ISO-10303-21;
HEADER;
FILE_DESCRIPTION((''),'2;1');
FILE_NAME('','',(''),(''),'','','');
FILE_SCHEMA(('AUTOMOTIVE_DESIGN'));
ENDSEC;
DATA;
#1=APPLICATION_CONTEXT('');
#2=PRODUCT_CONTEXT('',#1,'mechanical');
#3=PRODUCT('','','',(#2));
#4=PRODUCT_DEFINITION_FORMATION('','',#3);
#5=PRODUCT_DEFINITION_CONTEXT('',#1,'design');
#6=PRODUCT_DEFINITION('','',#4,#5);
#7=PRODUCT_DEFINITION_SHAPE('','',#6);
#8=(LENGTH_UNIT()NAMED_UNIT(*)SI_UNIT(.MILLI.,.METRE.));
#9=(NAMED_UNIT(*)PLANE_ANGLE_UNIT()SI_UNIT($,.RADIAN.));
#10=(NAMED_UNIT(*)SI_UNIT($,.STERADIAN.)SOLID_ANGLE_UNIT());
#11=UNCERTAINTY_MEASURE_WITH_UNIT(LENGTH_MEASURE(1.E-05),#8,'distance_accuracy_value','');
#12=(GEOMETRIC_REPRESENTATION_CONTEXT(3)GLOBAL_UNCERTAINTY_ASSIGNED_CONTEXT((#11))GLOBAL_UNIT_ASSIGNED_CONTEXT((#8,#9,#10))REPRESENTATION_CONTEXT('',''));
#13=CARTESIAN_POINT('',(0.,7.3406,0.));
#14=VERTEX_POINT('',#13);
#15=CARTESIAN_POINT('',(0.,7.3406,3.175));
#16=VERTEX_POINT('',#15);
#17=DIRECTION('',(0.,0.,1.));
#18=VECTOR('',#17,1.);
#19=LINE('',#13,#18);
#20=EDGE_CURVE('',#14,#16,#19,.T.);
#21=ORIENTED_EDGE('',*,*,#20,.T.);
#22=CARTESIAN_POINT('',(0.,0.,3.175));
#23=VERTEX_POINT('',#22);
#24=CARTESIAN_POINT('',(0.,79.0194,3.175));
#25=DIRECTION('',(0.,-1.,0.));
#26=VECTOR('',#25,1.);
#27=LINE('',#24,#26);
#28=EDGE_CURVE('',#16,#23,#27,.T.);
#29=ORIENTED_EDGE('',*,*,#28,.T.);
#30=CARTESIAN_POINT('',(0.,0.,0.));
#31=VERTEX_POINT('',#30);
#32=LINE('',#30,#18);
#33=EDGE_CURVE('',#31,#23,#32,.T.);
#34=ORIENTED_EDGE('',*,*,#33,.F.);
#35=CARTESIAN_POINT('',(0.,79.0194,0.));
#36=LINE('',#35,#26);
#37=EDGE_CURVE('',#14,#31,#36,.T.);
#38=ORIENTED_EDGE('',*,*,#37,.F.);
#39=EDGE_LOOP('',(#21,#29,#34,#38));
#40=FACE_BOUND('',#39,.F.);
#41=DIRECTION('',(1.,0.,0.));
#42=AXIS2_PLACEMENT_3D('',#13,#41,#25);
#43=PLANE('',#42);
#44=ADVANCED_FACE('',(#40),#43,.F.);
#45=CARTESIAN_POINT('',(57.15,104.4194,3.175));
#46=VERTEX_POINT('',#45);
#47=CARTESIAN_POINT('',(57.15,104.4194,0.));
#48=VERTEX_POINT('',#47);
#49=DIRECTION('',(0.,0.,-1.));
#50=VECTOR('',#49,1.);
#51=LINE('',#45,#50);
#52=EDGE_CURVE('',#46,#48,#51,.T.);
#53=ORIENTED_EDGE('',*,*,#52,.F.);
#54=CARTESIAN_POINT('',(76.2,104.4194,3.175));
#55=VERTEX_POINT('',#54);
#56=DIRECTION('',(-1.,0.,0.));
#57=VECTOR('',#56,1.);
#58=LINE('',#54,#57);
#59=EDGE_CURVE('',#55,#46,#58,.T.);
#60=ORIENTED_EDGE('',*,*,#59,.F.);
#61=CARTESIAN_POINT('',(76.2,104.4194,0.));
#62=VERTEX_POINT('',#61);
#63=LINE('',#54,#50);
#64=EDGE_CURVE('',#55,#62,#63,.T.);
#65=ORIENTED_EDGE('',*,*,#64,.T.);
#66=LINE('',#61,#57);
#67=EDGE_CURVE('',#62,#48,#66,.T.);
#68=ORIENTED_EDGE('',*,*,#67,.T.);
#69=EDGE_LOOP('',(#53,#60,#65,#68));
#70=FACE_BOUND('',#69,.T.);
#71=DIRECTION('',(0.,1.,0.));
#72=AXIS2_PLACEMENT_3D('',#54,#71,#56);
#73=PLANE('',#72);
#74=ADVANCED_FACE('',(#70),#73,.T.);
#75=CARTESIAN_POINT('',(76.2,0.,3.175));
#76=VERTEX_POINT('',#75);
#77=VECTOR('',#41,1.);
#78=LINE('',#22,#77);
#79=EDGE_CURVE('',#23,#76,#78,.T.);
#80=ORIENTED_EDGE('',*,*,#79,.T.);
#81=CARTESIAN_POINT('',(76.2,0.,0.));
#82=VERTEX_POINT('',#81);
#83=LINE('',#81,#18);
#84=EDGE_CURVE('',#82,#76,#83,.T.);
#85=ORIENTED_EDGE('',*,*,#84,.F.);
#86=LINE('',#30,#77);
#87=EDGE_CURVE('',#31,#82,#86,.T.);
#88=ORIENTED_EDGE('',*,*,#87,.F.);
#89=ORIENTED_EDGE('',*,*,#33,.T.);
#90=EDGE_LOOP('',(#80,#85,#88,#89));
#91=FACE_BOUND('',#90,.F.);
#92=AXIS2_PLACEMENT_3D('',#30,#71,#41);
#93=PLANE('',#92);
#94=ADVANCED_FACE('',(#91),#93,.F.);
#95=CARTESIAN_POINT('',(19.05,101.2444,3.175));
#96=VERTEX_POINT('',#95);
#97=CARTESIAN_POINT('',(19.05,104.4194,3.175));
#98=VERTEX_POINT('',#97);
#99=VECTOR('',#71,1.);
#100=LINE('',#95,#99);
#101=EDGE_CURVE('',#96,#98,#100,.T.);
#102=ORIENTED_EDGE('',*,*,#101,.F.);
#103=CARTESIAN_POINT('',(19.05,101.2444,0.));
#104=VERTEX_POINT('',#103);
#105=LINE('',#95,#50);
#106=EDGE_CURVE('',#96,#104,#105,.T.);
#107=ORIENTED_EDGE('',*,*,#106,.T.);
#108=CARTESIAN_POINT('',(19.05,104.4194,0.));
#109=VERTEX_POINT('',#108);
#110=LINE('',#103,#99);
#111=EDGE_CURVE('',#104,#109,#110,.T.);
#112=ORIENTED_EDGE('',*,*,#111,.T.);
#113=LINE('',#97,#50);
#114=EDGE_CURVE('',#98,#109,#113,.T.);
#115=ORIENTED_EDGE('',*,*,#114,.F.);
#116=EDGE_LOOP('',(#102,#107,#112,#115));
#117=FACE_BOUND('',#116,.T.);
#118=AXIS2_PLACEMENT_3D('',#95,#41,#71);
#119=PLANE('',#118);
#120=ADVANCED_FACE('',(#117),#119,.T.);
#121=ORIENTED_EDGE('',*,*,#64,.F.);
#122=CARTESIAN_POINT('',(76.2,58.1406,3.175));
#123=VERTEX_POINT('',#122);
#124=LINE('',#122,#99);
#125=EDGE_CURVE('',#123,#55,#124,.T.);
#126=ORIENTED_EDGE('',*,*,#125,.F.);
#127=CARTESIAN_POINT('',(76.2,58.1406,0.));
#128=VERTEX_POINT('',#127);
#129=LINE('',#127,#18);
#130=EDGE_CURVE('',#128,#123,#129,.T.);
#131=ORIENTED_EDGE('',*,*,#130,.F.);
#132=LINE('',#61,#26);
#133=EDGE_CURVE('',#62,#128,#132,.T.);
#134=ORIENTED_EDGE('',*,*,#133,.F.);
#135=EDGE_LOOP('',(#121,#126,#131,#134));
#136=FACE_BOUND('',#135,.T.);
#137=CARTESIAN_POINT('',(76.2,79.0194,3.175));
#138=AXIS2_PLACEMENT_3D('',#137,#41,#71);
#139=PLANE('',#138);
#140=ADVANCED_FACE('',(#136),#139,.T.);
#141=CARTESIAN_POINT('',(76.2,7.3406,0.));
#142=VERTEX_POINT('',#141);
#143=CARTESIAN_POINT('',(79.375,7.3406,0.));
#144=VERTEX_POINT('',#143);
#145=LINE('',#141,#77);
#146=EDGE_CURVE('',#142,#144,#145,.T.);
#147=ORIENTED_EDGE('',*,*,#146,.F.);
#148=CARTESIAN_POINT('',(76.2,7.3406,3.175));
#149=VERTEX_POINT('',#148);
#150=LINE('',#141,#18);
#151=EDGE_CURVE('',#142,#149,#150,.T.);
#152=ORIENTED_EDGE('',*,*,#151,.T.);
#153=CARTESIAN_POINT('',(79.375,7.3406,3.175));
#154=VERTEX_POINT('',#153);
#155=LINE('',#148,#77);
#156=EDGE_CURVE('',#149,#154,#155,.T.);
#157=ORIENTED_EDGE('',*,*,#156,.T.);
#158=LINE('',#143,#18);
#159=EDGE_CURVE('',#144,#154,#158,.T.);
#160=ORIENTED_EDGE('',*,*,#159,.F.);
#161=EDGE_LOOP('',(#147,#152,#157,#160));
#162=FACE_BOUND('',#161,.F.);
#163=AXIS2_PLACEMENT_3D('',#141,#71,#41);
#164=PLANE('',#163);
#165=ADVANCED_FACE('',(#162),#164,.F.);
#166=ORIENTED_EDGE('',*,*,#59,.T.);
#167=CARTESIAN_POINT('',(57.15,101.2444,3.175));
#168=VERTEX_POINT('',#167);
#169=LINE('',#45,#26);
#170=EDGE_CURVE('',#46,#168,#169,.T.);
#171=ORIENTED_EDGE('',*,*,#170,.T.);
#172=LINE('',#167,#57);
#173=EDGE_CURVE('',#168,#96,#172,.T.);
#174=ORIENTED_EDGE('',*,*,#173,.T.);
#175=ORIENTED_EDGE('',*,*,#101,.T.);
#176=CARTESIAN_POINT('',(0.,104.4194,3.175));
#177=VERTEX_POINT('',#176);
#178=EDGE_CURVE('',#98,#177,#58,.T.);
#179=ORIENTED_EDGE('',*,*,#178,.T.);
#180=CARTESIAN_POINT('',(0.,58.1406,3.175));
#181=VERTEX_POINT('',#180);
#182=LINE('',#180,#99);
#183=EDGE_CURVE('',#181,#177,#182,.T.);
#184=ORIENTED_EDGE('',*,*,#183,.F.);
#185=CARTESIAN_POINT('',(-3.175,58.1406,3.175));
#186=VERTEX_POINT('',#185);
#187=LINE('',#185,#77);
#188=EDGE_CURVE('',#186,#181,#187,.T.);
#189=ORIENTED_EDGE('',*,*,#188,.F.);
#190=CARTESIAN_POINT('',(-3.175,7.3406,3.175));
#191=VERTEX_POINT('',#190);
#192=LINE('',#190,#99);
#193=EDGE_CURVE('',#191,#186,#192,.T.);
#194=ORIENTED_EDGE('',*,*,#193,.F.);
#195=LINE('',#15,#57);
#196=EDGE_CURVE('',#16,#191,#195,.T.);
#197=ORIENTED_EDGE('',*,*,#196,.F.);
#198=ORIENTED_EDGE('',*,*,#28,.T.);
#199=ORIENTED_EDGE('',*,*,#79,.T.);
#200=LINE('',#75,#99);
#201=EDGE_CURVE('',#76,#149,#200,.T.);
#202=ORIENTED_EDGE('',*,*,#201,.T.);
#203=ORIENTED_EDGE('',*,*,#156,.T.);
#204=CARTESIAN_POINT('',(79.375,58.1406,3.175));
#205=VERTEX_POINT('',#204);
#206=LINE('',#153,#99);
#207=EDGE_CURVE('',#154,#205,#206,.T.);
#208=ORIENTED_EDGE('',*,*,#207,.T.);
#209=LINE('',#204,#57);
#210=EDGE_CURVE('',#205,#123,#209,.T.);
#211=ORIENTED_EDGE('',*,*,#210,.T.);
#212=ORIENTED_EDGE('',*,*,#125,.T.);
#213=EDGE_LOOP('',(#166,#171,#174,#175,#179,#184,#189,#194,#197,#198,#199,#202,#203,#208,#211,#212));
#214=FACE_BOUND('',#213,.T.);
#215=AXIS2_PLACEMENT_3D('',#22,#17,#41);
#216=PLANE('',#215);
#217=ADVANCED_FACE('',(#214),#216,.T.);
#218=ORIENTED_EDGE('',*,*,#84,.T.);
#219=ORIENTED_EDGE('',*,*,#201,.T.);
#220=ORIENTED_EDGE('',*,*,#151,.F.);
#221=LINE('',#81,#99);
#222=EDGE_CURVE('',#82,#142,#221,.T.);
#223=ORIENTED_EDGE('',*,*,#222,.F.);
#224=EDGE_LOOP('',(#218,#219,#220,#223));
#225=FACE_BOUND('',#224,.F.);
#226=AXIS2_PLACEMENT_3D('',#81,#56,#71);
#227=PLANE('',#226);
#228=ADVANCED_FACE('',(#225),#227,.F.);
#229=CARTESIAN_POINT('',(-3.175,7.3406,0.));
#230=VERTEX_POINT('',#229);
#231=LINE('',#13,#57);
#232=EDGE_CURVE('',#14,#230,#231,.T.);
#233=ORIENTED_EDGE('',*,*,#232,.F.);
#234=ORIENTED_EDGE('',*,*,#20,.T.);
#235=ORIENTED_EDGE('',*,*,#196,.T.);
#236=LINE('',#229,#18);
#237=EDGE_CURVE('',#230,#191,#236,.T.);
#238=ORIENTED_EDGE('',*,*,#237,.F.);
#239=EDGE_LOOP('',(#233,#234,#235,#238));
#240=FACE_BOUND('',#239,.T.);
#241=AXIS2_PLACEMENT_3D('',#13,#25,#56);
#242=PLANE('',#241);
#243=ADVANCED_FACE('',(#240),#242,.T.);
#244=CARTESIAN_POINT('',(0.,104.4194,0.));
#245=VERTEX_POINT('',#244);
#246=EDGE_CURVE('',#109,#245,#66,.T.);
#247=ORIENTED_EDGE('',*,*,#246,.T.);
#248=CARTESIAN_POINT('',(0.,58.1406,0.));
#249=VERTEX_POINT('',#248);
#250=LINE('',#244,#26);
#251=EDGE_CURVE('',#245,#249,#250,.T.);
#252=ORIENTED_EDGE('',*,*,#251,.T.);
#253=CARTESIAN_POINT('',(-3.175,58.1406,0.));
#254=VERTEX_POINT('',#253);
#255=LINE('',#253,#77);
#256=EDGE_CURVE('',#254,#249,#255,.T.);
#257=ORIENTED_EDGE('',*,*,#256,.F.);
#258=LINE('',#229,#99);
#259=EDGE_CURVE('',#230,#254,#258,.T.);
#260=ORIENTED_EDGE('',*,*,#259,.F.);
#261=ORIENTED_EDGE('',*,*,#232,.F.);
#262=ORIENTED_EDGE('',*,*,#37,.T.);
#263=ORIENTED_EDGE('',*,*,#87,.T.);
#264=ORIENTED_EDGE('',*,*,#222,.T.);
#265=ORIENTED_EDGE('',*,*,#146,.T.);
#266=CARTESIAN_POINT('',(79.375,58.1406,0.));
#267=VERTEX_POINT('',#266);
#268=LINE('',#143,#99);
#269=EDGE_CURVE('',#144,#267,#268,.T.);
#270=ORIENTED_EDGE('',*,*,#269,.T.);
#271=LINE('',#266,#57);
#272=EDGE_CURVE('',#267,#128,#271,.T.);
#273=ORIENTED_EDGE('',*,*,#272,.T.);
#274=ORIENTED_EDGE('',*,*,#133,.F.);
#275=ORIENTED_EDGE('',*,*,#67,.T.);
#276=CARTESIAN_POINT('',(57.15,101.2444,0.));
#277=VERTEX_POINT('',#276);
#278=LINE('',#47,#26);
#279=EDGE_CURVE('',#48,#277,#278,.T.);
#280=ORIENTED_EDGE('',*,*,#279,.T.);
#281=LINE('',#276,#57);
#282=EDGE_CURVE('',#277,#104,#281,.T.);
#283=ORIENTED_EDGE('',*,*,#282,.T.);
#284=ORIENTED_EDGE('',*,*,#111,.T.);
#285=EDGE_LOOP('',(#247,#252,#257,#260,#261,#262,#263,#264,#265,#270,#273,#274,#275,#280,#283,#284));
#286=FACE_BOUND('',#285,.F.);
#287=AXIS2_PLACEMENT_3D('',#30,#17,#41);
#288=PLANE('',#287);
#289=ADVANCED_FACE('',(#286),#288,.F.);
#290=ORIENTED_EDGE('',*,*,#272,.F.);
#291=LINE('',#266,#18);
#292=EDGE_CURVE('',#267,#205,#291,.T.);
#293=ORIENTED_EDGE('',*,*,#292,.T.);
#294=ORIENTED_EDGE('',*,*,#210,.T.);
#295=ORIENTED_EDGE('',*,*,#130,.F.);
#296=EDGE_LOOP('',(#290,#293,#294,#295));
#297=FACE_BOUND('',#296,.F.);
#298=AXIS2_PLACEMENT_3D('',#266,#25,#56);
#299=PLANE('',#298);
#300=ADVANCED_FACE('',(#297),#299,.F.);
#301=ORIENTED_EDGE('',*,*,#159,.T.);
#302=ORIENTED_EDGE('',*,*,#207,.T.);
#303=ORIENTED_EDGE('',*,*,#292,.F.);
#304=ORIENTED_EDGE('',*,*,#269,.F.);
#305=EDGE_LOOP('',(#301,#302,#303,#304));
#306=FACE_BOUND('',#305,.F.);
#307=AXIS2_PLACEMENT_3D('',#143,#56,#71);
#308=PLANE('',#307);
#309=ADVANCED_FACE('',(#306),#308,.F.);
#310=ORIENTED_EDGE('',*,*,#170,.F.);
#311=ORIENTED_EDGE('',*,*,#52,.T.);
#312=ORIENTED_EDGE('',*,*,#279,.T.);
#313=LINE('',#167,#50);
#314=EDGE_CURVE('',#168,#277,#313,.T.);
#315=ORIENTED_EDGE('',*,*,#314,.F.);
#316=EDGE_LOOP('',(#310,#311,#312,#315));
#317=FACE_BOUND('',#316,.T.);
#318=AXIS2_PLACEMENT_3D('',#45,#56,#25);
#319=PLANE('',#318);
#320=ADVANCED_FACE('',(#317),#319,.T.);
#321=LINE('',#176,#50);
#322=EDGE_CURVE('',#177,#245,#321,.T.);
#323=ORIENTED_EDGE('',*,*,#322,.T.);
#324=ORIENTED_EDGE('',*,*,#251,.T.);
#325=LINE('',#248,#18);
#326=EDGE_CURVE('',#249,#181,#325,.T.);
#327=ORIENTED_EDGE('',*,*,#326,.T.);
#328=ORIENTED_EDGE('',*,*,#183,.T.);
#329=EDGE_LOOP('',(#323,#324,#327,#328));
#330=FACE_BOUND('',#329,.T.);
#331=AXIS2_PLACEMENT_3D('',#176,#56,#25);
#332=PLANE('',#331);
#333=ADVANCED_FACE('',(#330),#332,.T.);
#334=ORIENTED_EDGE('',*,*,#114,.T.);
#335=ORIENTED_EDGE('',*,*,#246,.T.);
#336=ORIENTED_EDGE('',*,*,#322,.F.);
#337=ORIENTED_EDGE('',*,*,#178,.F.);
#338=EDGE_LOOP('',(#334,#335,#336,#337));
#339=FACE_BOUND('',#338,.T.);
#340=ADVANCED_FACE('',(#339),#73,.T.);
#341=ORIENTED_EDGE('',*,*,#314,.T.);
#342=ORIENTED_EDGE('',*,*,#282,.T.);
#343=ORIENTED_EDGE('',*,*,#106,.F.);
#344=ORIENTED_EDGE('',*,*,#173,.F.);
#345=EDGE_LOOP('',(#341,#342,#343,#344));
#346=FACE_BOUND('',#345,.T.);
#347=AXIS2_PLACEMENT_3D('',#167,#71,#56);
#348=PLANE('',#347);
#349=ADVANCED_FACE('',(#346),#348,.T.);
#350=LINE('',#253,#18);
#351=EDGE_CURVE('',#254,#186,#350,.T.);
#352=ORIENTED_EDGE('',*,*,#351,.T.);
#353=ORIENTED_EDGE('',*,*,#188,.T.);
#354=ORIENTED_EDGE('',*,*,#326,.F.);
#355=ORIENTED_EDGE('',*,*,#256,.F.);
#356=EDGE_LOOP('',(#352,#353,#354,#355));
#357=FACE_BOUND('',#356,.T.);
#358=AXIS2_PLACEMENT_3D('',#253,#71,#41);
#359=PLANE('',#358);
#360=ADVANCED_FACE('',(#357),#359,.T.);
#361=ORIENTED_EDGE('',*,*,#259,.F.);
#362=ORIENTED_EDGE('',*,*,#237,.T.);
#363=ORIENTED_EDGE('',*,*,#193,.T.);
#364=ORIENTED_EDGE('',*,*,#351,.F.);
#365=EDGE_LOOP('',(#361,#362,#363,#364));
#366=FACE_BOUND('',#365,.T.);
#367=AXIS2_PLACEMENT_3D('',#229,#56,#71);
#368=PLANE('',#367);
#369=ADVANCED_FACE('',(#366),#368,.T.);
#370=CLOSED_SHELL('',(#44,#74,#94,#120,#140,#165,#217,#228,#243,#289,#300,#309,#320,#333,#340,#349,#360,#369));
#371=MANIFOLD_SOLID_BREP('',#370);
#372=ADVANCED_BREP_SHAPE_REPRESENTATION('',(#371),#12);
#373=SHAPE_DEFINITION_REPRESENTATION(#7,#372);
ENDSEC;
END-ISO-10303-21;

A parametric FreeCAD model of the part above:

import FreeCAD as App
import Part
import Sketcher
from FreeCAD import Vector
Q = App.Units.Quantity

doc = App.newDocument("Part")
body = doc.addObject("PartDesign::Body", "Body")

# Sketch on XY plane
sketch1 = body.newObject("Sketcher::SketchObject", "Sketch")
sketch1.AttachmentSupport = (doc.getObject("XY_Plane"), [""])
sketch1.MapMode = "FlatFace"
sketch1.addGeometry([
    Part.LineSegment(Vector(0, 7.3406, 0), Vector(0, 0, 0)),  # 0
    Part.LineSegment(Vector(0, 0, 0), Vector(76.2, 0, 0)),  # 1
    Part.LineSegment(Vector(76.2, 0, 0), Vector(76.2, 7.3406, 0)),  # 2
    Part.LineSegment(Vector(76.2, 7.3406, 0), Vector(79.375, 7.3406, 0)),  # 3
    Part.LineSegment(Vector(79.375, 7.3406, 0), Vector(79.375, 58.1406, 0)),  # 4
    Part.LineSegment(Vector(79.375, 58.1406, 0), Vector(76.2, 58.1406, 0)),  # 5
    Part.LineSegment(Vector(76.2, 58.1406, 0), Vector(76.2, 79.0194, 0)),  # 6
    Part.LineSegment(Vector(76.2, 79.0194, 0), Vector(0, 79.0194, 0)),  # 7
    Part.LineSegment(Vector(0, 79.0194, 0), Vector(0, 58.1406, 0)),  # 8
    Part.LineSegment(Vector(0, 58.1406, 0), Vector(-3.175, 58.1406, 0)),  # 9
    Part.LineSegment(Vector(-3.175, 58.1406, 0), Vector(-3.175, 7.3406, 0)),  # 10
    Part.LineSegment(Vector(-3.175, 7.3406, 0), Vector(0, 7.3406, 0)),  # 11
], False)
sketch1.addConstraint([
    Sketcher.Constraint("Coincident", 0, 2, 1, 1),
    Sketcher.Constraint("Coincident", 1, 2, 2, 1),
    Sketcher.Constraint("Coincident", 2, 2, 3, 1),
    Sketcher.Constraint("Coincident", 3, 2, 4, 1),
    Sketcher.Constraint("Coincident", 4, 2, 5, 1),
    Sketcher.Constraint("Coincident", 5, 2, 6, 1),
    Sketcher.Constraint("Coincident", 6, 2, 7, 1),
    Sketcher.Constraint("Coincident", 7, 2, 8, 1),
    Sketcher.Constraint("Coincident", 8, 2, 9, 1),
    Sketcher.Constraint("Coincident", 9, 2, 10, 1),
    Sketcher.Constraint("Coincident", 10, 2, 11, 1),
    Sketcher.Constraint("Coincident", 11, 2, 0, 1),
    Sketcher.Constraint("Vertical", 0),
    Sketcher.Constraint("Horizontal", 1),
    Sketcher.Constraint("Vertical", 2),
    Sketcher.Constraint("Horizontal", 3),
    Sketcher.Constraint("Vertical", 4),
    Sketcher.Constraint("Horizontal", 5),
    Sketcher.Constraint("Vertical", 6),
    Sketcher.Constraint("Horizontal", 7),
    Sketcher.Constraint("Vertical", 8),
    Sketcher.Constraint("Horizontal", 9),
    Sketcher.Constraint("Vertical", 10),
    Sketcher.Constraint("Horizontal", 11),
    Sketcher.Constraint("Coincident", 0, 2, -1, 1),
    Sketcher.Constraint("PointOnObject", 7, 2, -2),
    Sketcher.Constraint("Horizontal", 5, 2, 8, 2),
    Sketcher.Constraint("Horizontal", 3, 2, 10, 2),
    Sketcher.Constraint("Vertical", 2, 2, 5, 2),
    Sketcher.Constraint("Equal", 5, 9),
    Sketcher.Constraint("DistanceX", 1, 1, 1, 2, Q("3 in")),
    Sketcher.Constraint("DistanceY", 4, 1, 4, 2, Q("2 in")),
    Sketcher.Constraint("DistanceX", 3, 1, 3, 2, Q("0.125 in")),
    Sketcher.Constraint("DistanceY", 0, 2, 0, 1, Q("0.289 in")),
    Sketcher.Constraint("DistanceY", -1, 1, 6, 2, Q("3.111 in")),
])
pad1 = body.newObject("PartDesign::Pad", "Pad")
pad1.Profile = sketch1
pad1.Length = Q("0.125 in")

# Sketch on XY plane
sketch2 = body.newObject("Sketcher::SketchObject", "Sketch001")
sketch2.AttachmentSupport = (doc.getObject("XY_Plane"), [""])
sketch2.MapMode = "FlatFace"
sketch2.AttachmentOffset = App.Placement(Vector(0, 0, 0.125 * 25.4), App.Rotation())
sketch2.addGeometry([
    Part.LineSegment(Vector(0, 79.0194, 0), Vector(76.2, 79.0194, 0)),
    Part.LineSegment(Vector(76.2, 79.0194, 0), Vector(76.2, 104.4194, 0)),
    Part.LineSegment(Vector(76.2, 104.4194, 0), Vector(0, 104.4194, 0)),
    Part.LineSegment(Vector(0, 104.4194, 0), Vector(0, 79.0194, 0)),
], False)
sketch2.addConstraint([
    Sketcher.Constraint("Coincident", 0, 2, 1, 1),
    Sketcher.Constraint("Coincident", 1, 2, 2, 1),
    Sketcher.Constraint("Coincident", 2, 2, 3, 1),
    Sketcher.Constraint("Coincident", 3, 2, 0, 1),
    Sketcher.Constraint("Horizontal", 0),
    Sketcher.Constraint("Vertical", 1),
    Sketcher.Constraint("Horizontal", 2),
    Sketcher.Constraint("Vertical", 3),
    Sketcher.Constraint("PointOnObject", 2, 2, -2),
    Sketcher.Constraint("DistanceY", 1, 1, 1, 2, Q("1 in")),
    Sketcher.Constraint("DistanceX", 0, 1, 0, 2, Q("3 in")),
    Sketcher.Constraint("DistanceY", -1, 1, 0, 2, Q("3.111 in")),
])
pad2 = body.newObject("PartDesign::Pad", "Pad001")
pad2.Profile = sketch2
pad2.Length = Q("0.125 in")
pad2.Reversed = True

# Sketch on XY plane
sketch3 = body.newObject("Sketcher::SketchObject", "Sketch002")
sketch3.AttachmentSupport = (doc.getObject("XY_Plane"), [""])
sketch3.MapMode = "FlatFace"
sketch3.AttachmentOffset = App.Placement(Vector(0, 0, 0.125 * 25.4), App.Rotation())
sketch3.addGeometry([
    Part.LineSegment(Vector(57.15, 101.2444, 0), Vector(57.15, 104.4194, 0)),
    Part.LineSegment(Vector(57.15, 104.4194, 0), Vector(19.05, 104.4194, 0)),
    Part.LineSegment(Vector(19.05, 104.4194, 0), Vector(19.05, 101.2444, 0)),
    Part.LineSegment(Vector(19.05, 101.2444, 0), Vector(57.15, 101.2444, 0)),
], False)
sketch3.addConstraint([
    Sketcher.Constraint("Coincident", 0, 2, 1, 1),
    Sketcher.Constraint("Coincident", 1, 2, 2, 1),
    Sketcher.Constraint("Coincident", 2, 2, 3, 1),
    Sketcher.Constraint("Coincident", 3, 2, 0, 1),
    Sketcher.Constraint("Vertical", 0),
    Sketcher.Constraint("Horizontal", 1),
    Sketcher.Constraint("Vertical", 2),
    Sketcher.Constraint("Horizontal", 3),
    Sketcher.Constraint("DistanceX", 1, 2, 1, 1, Q("1.5 in")),
    Sketcher.Constraint("DistanceY", 0, 1, 0, 2, Q("0.125 in")),
    Sketcher.Constraint("DistanceX", -1, 1, 1, 2, Q("0.75 in")),
    Sketcher.Constraint("DistanceY", -1, 1, 0, 2, Q("4.111 in")),
])
pocket1 = body.newObject("PartDesign::Pocket", "Pocket")
pocket1.Profile = sketch3
pocket1.Length = Q("0.125 in")

doc.recompute()
